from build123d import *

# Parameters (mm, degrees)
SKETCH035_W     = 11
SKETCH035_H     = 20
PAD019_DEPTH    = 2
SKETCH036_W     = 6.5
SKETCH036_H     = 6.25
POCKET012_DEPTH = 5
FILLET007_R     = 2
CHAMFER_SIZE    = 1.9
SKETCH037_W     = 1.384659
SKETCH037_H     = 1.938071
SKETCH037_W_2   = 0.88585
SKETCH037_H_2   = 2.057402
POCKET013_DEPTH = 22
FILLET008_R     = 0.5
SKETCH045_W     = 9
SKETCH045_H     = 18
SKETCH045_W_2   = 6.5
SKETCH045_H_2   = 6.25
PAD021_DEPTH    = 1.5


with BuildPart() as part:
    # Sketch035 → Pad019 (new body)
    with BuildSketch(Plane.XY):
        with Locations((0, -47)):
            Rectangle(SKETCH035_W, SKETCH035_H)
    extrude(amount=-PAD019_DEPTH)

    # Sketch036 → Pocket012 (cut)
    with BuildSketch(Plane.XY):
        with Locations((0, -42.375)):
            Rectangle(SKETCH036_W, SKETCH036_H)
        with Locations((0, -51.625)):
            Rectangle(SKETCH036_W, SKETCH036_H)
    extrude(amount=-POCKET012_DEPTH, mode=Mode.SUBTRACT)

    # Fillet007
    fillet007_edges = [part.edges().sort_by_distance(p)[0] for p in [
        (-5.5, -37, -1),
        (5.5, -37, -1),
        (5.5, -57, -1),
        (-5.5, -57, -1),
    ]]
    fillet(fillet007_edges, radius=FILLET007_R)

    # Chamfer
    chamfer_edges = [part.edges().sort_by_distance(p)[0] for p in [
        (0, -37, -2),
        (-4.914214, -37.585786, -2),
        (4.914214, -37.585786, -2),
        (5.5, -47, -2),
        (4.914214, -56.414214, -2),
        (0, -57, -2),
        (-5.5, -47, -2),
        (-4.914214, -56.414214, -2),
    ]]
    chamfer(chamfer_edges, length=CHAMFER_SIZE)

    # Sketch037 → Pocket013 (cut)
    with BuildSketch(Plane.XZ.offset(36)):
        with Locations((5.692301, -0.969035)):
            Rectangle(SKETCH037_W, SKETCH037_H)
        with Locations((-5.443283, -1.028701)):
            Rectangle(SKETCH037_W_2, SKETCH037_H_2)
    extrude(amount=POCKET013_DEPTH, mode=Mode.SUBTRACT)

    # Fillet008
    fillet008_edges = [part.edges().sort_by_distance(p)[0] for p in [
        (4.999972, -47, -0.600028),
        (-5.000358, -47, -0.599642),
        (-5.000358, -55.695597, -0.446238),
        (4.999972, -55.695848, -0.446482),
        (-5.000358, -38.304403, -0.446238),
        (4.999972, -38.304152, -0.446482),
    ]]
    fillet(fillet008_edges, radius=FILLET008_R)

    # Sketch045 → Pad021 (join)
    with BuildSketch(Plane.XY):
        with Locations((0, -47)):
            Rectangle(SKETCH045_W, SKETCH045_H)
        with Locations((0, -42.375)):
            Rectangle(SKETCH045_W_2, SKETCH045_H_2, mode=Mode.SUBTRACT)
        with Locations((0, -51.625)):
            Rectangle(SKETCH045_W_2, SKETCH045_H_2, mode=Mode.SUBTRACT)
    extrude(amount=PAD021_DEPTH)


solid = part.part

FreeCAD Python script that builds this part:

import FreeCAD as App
import Part
import Sketcher

V = App.Vector
Q = App.Units.Quantity


def edges_at(feature, points):
    """Names of the edges that pass closest to the given points."""
    edges = feature.Shape.Edges
    near = lambda p: min(range(len(edges)), key=lambda i: edges[i].distToShape(Part.Vertex(*p))[0])
    return sorted({f"Edge{near(p) + 1}" for p in points})

doc = App.newDocument("Part")
body = doc.addObject("PartDesign::Body", "Body")

# Sketch on XY plane
sketch1 = body.newObject("Sketcher::SketchObject", "Sketch")
sketch1.AttachmentSupport = (doc.getObject("XY_Plane"), [""])
sketch1.MapMode = "FlatFace"
sketch1.addGeometry(Part.LineSegment(V(-5.5, -37, 0), V(-5.5, -57, 0)), False)
sketch1.addGeometry(Part.LineSegment(V(-5.5, -57, 0), V(5.5, -57, 0)), False)
sketch1.addGeometry(Part.LineSegment(V(5.5, -57, 0), V(5.5, -37, 0)), False)
sketch1.addGeometry(Part.LineSegment(V(5.5, -37, 0), V(-5.5, -37, 0)), False)
sketch1.addConstraint(Sketcher.Constraint("Coincident", 0, 2, 1, 1))
sketch1.addConstraint(Sketcher.Constraint("Coincident", 1, 2, 2, 1))
sketch1.addConstraint(Sketcher.Constraint("Coincident", 2, 2, 3, 1))
sketch1.addConstraint(Sketcher.Constraint("Coincident", 3, 2, 0, 1))
sketch1.addConstraint(Sketcher.Constraint("Vertical", 0))
sketch1.addConstraint(Sketcher.Constraint("Horizontal", 1))
sketch1.addConstraint(Sketcher.Constraint("Vertical", 2))
sketch1.addConstraint(Sketcher.Constraint("Horizontal", 3))
sketch1.addConstraint(Sketcher.Constraint("DistanceX", 1, 1, 1, 2, Q("11 mm")))
sketch1.addConstraint(Sketcher.Constraint("DistanceY", 0, 2, 0, 1, Q("20 mm")))
sketch1.addConstraint(Sketcher.Constraint("DistanceY", 0, 2, -1, 1, Q("57 mm")))
sketch1.addConstraint(Sketcher.Constraint("DistanceX", 0, 2, -1, 1, Q("5.5 mm")))
pad1 = body.newObject("PartDesign::Pad", "Pad")
pad1.Profile = sketch1
pad1.Length = 2
pad1.Reversed = True

# Sketch on XY plane
sketch2 = body.newObject("Sketcher::SketchObject", "Sketch001")
sketch2.AttachmentSupport = (doc.getObject("XY_Plane"), [""])
sketch2.MapMode = "FlatFace"
sketch2.addGeometry(Part.LineSegment(V(-3.25, -39.25, 0), V(-3.25, -45.5, 0)), False)
sketch2.addGeometry(Part.LineSegment(V(-3.25, -45.5, 0), V(3.25, -45.5, 0)), False)
sketch2.addGeometry(Part.LineSegment(V(3.25, -45.5, 0), V(3.25, -39.25, 0)), False)
sketch2.addGeometry(Part.LineSegment(V(3.25, -39.25, 0), V(-3.25, -39.25, 0)), False)
sketch2.addGeometry(Part.LineSegment(V(-3.25, -48.5, 0), V(-3.25, -54.75, 0)), False)
sketch2.addGeometry(Part.LineSegment(V(-3.25, -54.75, 0), V(3.25, -54.75, 0)), False)
sketch2.addGeometry(Part.LineSegment(V(3.25, -54.75, 0), V(3.25, -48.5, 0)), False)
sketch2.addGeometry(Part.LineSegment(V(3.25, -48.5, 0), V(-3.25, -48.5, 0)), False)
sketch2.addConstraint(Sketcher.Constraint("Coincident", 0, 2, 1, 1))
sketch2.addConstraint(Sketcher.Constraint("Coincident", 1, 2, 2, 1))
sketch2.addConstraint(Sketcher.Constraint("Coincident", 2, 2, 3, 1))
sketch2.addConstraint(Sketcher.Constraint("Coincident", 3, 2, 0, 1))
sketch2.addConstraint(Sketcher.Constraint("Coincident", 4, 2, 5, 1))
sketch2.addConstraint(Sketcher.Constraint("Coincident", 5, 2, 6, 1))
sketch2.addConstraint(Sketcher.Constraint("Coincident", 6, 2, 7, 1))
sketch2.addConstraint(Sketcher.Constraint("Coincident", 7, 2, 4, 1))
sketch2.addConstraint(Sketcher.Constraint("Vertical", 0))
sketch2.addConstraint(Sketcher.Constraint("Horizontal", 1))
sketch2.addConstraint(Sketcher.Constraint("Vertical", 2))
sketch2.addConstraint(Sketcher.Constraint("Horizontal", 3))
sketch2.addConstraint(Sketcher.Constraint("Vertical", 4))
sketch2.addConstraint(Sketcher.Constraint("Horizontal", 5))
sketch2.addConstraint(Sketcher.Constraint("Vertical", 6))
sketch2.addConstraint(Sketcher.Constraint("Horizontal", 7))
sketch2.addConstraint(Sketcher.Constraint("Vertical", 3, 2, 4, 2))
sketch2.addConstraint(Sketcher.Constraint("Vertical", 2, 2, 5, 2))
sketch2.addConstraint(Sketcher.Constraint("Equal", 2, 4))
sketch2.addConstraint(Sketcher.Constraint("DistanceX", 1, 1, 1, 2, Q("6.5 mm")))
sketch2.addConstraint(Sketcher.Constraint("DistanceY", 6, 2, 1, 2, Q("3 mm")))
sketch2.addConstraint(Sketcher.Constraint("DistanceY", 0, 2, 0, 1, Q("6.25 mm")))
sketch2.addConstraint(Sketcher.Constraint("DistanceY", 0, 2, -1, 1, Q("45.5 mm")))
sketch2.addConstraint(Sketcher.Constraint("DistanceX", 0, 2, -1, 1, Q("3.25 mm")))
pocket1 = body.newObject("PartDesign::Pocket", "Pocket")
pocket1.Profile = sketch2
pocket1.Length = 5
doc.recompute()

fillet = body.newObject("PartDesign::Fillet", "Fillet")
fillet.Base = (pocket1, edges_at(pocket1, [
    (-5.5, -37, -1),
    (5.5, -37, -1),
    (5.5, -57, -1),
    (-5.5, -57, -1),
]))
fillet.Radius = 2
doc.recompute()

chamfer = body.newObject("PartDesign::Chamfer", "Chamfer")
chamfer.Base = (fillet, edges_at(fillet, [
    (0, -37, -2),
    (-4.914, -37.586, -2),
    (4.914, -37.586, -2),
    (5.5, -47, -2),
    (4.914, -56.414, -2),
    (0, -57, -2),
    (-5.5, -47, -2),
    (-4.914, -56.414, -2),
]))
chamfer.Size = 1.9

# Sketch on XZ plane
sketch3 = body.newObject("Sketcher::SketchObject", "Sketch002")
sketch3.AttachmentSupport = (doc.getObject("XZ_Plane"), [""])
sketch3.MapMode = "FlatFace"
sketch3.AttachmentOffset = App.Placement(V(0, 0, 36), App.Rotation())
sketch3.addGeometry(Part.LineSegment(V(4.999972, 0, 0), V(4.999972, -1.938071, 0)), False)
sketch3.addGeometry(Part.LineSegment(V(4.999972, -1.938071, 0), V(6.384631, -1.938071, 0)), False)
sketch3.addGeometry(Part.LineSegment(V(6.384631, -1.938071, 0), V(6.384631, 0, 0)), False)
sketch3.addGeometry(Part.LineSegment(V(6.384631, 0, 0), V(4.999972, 0, 0)), False)
sketch3.addGeometry(Part.LineSegment(V(-5.886208, 0, 0), V(-5.886208, -2.057402, 0)), False)
sketch3.addGeometry(Part.LineSegment(V(-5.886208, -2.057402, 0), V(-5.000358, -2.057402, 0)), False)
sketch3.addGeometry(Part.LineSegment(V(-5.000358, -2.057402, 0), V(-5.000358, 0, 0)), False)
sketch3.addGeometry(Part.LineSegment(V(-5.000358, 0, 0), V(-5.886208, 0, 0)), False)
sketch3.addConstraint(Sketcher.Constraint("Coincident", 0, 2, 1, 1))
sketch3.addConstraint(Sketcher.Constraint("Coincident", 1, 2, 2, 1))
sketch3.addConstraint(Sketcher.Constraint("Coincident", 2, 2, 3, 1))
sketch3.addConstraint(Sketcher.Constraint("Coincident", 3, 2, 0, 1))
sketch3.addConstraint(Sketcher.Constraint("Coincident", 4, 2, 5, 1))
sketch3.addConstraint(Sketcher.Constraint("Coincident", 5, 2, 6, 1))
sketch3.addConstraint(Sketcher.Constraint("Coincident", 6, 2, 7, 1))
sketch3.addConstraint(Sketcher.Constraint("Coincident", 7, 2, 4, 1))
sketch3.addConstraint(Sketcher.Constraint("Vertical", 0))
sketch3.addConstraint(Sketcher.Constraint("Horizontal", 1))
sketch3.addConstraint(Sketcher.Constraint("Vertical", 2))
sketch3.addConstraint(Sketcher.Constraint("Horizontal", 3))
sketch3.addConstraint(Sketcher.Constraint("Vertical", 4))
sketch3.addConstraint(Sketcher.Constraint("Horizontal", 5))
sketch3.addConstraint(Sketcher.Constraint("Vertical", 6))
sketch3.addConstraint(Sketcher.Constraint("Horizontal", 7))
sketch3.addConstraint(Sketcher.Constraint("PointOnObject", 2, 2, -1))
sketch3.addConstraint(Sketcher.Constraint("PointOnObject", 6, 2, -1))
sketch3.addConstraint(Sketcher.Constraint("DistanceX", 1, 1, 1, 2, Q("1.384659 mm")))
sketch3.addConstraint(Sketcher.Constraint("DistanceX", 5, 1, 5, 2, Q("0.88585 mm")))
sketch3.addConstraint(Sketcher.Constraint("DistanceY", 0, 2, 0, 1, Q("1.938071 mm")))
sketch3.addConstraint(Sketcher.Constraint("DistanceY", 4, 2, 4, 1, Q("2.057402 mm")))
sketch3.addConstraint(Sketcher.Constraint("DistanceX", -1, 1, 0, 2, Q("4.999972 mm")))
sketch3.addConstraint(Sketcher.Constraint("DistanceX", 5, 2, -1, 1, Q("5.000358 mm")))
pocket2 = body.newObject("PartDesign::Pocket", "Pocket001")
pocket2.Profile = sketch3
pocket2.Length = 22
pocket2.Reversed = True
doc.recompute()

fillet2 = body.newObject("PartDesign::Fillet", "Fillet001")
fillet2.Base = (pocket2, edges_at(pocket2, [
    (5, -47, -0.6),
    (-5, -47, -0.6),
    (-5, -55.696, -0.446),
    (5, -55.696, -0.446),
    (-5, -38.304, -0.446),
    (5, -38.304, -0.446),
]))
fillet2.Radius = 0.5

# Sketch on XY plane
sketch4 = body.newObject("Sketcher::SketchObject", "Sketch003")
sketch4.AttachmentSupport = (doc.getObject("XY_Plane"), [""])
sketch4.MapMode = "FlatFace"
sketch4.addGeometry(Part.LineSegment(V(-4.5, -38, 0), V(-4.5, -56, 0)), False)
sketch4.addGeometry(Part.LineSegment(V(-4.5, -56, 0), V(4.5, -56, 0)), False)
sketch4.addGeometry(Part.LineSegment(V(4.5, -56, 0), V(4.5, -38, 0)), False)
sketch4.addGeometry(Part.LineSegment(V(4.5, -38, 0), V(-4.5, -38, 0)), False)
sketch4.addGeometry(Part.LineSegment(V(3.25, -54.75, 0), V(-3.25, -54.75, 0)), False)
sketch4.addGeometry(Part.LineSegment(V(-3.25, -54.75, 0), V(-3.25, -48.5, 0)), False)
sketch4.addGeometry(Part.LineSegment(V(-3.25, -48.5, 0), V(3.25, -48.5, 0)), False)
sketch4.addGeometry(Part.LineSegment(V(3.25, -48.5, 0), V(3.25, -54.75, 0)), False)
sketch4.addGeometry(Part.LineSegment(V(3.25, -45.5, 0), V(-3.25, -45.5, 0)), False)
sketch4.addGeometry(Part.LineSegment(V(-3.25, -45.5, 0), V(-3.25, -39.25, 0)), False)
sketch4.addGeometry(Part.LineSegment(V(-3.25, -39.25, 0), V(3.25, -39.25, 0)), False)
sketch4.addGeometry(Part.LineSegment(V(3.25, -39.25, 0), V(3.25, -45.5, 0)), False)
sketch4.addConstraint(Sketcher.Constraint("Coincident", 0, 2, 1, 1))
sketch4.addConstraint(Sketcher.Constraint("Coincident", 1, 2, 2, 1))
sketch4.addConstraint(Sketcher.Constraint("Coincident", 2, 2, 3, 1))
sketch4.addConstraint(Sketcher.Constraint("Coincident", 3, 2, 0, 1))
sketch4.addConstraint(Sketcher.Constraint("Coincident", 4, 2, 5, 1))
sketch4.addConstraint(Sketcher.Constraint("Coincident", 5, 2, 6, 1))
sketch4.addConstraint(Sketcher.Constraint("Coincident", 6, 2, 7, 1))
sketch4.addConstraint(Sketcher.Constraint("Coincident", 7, 2, 4, 1))
sketch4.addConstraint(Sketcher.Constraint("Coincident", 8, 2, 9, 1))
sketch4.addConstraint(Sketcher.Constraint("Coincident", 9, 2, 10, 1))
sketch4.addConstraint(Sketcher.Constraint("Coincident", 10, 2, 11, 1))
sketch4.addConstraint(Sketcher.Constraint("Coincident", 11, 2, 8, 1))
sketch4.addConstraint(Sketcher.Constraint("Vertical", 0))
sketch4.addConstraint(Sketcher.Constraint("Horizontal", 1))
sketch4.addConstraint(Sketcher.Constraint("Vertical", 2))
sketch4.addConstraint(Sketcher.Constraint("Horizontal", 3))
sketch4.addConstraint(Sketcher.Constraint("Horizontal", 4))
sketch4.addConstraint(Sketcher.Constraint("Vertical", 5))
sketch4.addConstraint(Sketcher.Constraint("Horizontal", 6))
sketch4.addConstraint(Sketcher.Constraint("Vertical", 7))
sketch4.addConstraint(Sketcher.Constraint("Horizontal", 8))
sketch4.addConstraint(Sketcher.Constraint("Vertical", 9))
sketch4.addConstraint(Sketcher.Constraint("Horizontal", 10))
sketch4.addConstraint(Sketcher.Constraint("Vertical", 11))
sketch4.addConstraint(Sketcher.Constraint("Vertical", 5, 2, 8, 2))
sketch4.addConstraint(Sketcher.Constraint("Vertical", 7, 2, 10, 2))
sketch4.addConstraint(Sketcher.Constraint("Equal", 7, 9))
sketch4.addConstraint(Sketcher.Constraint("DistanceX", 1, 1, 1, 2, Q("9 mm")))
sketch4.addConstraint(Sketcher.Constraint("DistanceY", 0, 2, 0, 1, Q("18 mm")))
sketch4.addConstraint(Sketcher.Constraint("DistanceX", 4, 2, 4, 1, Q("6.5 mm")))
sketch4.addConstraint(Sketcher.Constraint("DistanceY", 0, 2, -1, 1, Q("56 mm")))
sketch4.addConstraint(Sketcher.Constraint("DistanceY", 5, 2, 8, 2, Q("3 mm")))
sketch4.addConstraint(Sketcher.Constraint("DistanceY", 5, 1, 5, 2, Q("6.25 mm")))
sketch4.addConstraint(Sketcher.Constraint("DistanceX", 0, 2, -1, 1, Q("4.5 mm")))
sketch4.addConstraint(Sketcher.Constraint("DistanceY", 5, 2, -1, 1, Q("48.5 mm")))
sketch4.addConstraint(Sketcher.Constraint("DistanceX", 4, 2, -1, 1, Q("3.25 mm")))
pad2 = body.newObject("PartDesign::Pad", "Pad001")
pad2.Profile = sketch4
pad2.Length = 1.5

doc.recompute()
